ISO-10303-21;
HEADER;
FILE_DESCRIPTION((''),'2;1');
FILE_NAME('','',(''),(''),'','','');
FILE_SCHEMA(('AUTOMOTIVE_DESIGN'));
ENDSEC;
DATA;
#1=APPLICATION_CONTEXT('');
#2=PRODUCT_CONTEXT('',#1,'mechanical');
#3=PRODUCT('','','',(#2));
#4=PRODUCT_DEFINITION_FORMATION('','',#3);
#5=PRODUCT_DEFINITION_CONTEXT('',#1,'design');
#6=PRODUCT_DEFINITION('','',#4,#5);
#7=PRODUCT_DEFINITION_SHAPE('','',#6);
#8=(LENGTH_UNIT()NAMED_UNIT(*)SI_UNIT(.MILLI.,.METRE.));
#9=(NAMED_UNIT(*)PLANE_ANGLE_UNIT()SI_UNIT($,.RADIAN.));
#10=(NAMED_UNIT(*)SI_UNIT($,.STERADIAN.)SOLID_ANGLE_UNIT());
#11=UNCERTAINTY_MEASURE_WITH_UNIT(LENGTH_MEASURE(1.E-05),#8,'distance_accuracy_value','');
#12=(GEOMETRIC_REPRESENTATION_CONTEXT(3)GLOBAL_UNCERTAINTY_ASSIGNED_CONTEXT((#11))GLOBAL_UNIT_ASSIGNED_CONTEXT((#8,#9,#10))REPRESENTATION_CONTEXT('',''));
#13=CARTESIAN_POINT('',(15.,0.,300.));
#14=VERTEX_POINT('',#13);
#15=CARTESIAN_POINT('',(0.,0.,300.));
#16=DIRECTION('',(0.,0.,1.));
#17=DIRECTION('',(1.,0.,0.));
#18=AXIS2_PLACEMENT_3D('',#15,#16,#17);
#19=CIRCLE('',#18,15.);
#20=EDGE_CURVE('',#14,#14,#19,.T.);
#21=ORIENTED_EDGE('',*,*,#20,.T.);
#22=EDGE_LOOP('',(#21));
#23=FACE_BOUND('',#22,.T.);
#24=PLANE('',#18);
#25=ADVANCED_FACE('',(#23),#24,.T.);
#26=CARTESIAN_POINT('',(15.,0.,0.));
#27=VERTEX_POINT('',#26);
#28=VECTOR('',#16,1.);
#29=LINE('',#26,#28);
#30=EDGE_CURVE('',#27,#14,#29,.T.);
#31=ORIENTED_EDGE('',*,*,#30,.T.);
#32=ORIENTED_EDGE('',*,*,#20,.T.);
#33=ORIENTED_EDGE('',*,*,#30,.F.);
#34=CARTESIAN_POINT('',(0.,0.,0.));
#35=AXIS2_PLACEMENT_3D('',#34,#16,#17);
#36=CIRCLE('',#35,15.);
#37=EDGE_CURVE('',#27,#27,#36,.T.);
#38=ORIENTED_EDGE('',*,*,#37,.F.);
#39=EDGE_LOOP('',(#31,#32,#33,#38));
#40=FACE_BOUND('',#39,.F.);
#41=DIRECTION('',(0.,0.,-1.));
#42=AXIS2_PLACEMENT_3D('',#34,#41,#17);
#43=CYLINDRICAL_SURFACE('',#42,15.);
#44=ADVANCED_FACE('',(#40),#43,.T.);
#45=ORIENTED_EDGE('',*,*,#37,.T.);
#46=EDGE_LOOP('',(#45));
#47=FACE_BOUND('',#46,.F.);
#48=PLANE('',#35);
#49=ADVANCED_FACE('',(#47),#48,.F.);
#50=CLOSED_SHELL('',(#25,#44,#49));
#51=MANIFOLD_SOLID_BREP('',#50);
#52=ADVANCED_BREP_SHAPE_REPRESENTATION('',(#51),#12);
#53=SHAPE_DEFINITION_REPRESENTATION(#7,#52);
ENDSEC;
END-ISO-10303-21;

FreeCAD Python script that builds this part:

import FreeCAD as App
import Part
import Sketcher
from FreeCAD import Vector
Q = App.Units.Quantity

doc = App.newDocument("Part")
body = doc.addObject("PartDesign::Body", "Body")

sketch1 = body.newObject("Sketcher::SketchObject", "Sketch")
sketch1.AttachmentSupport = (doc.getObject("XY_Plane"), [""])
sketch1.MapMode = "FlatFace"
sketch1.addGeometry(Part.Circle(Vector(0, 0, 0), Vector(0, 0, 1), 15), False)
sketch1.addConstraint([
    Sketcher.Constraint("Coincident", 0, 3, -1, 1),
    Sketcher.Constraint("Diameter", 0, Q("30 mm")),
])
pad1 = body.newObject("PartDesign::Pad", "Pad")
pad1.Profile = sketch1
pad1.Length = 300

doc.recompute()
